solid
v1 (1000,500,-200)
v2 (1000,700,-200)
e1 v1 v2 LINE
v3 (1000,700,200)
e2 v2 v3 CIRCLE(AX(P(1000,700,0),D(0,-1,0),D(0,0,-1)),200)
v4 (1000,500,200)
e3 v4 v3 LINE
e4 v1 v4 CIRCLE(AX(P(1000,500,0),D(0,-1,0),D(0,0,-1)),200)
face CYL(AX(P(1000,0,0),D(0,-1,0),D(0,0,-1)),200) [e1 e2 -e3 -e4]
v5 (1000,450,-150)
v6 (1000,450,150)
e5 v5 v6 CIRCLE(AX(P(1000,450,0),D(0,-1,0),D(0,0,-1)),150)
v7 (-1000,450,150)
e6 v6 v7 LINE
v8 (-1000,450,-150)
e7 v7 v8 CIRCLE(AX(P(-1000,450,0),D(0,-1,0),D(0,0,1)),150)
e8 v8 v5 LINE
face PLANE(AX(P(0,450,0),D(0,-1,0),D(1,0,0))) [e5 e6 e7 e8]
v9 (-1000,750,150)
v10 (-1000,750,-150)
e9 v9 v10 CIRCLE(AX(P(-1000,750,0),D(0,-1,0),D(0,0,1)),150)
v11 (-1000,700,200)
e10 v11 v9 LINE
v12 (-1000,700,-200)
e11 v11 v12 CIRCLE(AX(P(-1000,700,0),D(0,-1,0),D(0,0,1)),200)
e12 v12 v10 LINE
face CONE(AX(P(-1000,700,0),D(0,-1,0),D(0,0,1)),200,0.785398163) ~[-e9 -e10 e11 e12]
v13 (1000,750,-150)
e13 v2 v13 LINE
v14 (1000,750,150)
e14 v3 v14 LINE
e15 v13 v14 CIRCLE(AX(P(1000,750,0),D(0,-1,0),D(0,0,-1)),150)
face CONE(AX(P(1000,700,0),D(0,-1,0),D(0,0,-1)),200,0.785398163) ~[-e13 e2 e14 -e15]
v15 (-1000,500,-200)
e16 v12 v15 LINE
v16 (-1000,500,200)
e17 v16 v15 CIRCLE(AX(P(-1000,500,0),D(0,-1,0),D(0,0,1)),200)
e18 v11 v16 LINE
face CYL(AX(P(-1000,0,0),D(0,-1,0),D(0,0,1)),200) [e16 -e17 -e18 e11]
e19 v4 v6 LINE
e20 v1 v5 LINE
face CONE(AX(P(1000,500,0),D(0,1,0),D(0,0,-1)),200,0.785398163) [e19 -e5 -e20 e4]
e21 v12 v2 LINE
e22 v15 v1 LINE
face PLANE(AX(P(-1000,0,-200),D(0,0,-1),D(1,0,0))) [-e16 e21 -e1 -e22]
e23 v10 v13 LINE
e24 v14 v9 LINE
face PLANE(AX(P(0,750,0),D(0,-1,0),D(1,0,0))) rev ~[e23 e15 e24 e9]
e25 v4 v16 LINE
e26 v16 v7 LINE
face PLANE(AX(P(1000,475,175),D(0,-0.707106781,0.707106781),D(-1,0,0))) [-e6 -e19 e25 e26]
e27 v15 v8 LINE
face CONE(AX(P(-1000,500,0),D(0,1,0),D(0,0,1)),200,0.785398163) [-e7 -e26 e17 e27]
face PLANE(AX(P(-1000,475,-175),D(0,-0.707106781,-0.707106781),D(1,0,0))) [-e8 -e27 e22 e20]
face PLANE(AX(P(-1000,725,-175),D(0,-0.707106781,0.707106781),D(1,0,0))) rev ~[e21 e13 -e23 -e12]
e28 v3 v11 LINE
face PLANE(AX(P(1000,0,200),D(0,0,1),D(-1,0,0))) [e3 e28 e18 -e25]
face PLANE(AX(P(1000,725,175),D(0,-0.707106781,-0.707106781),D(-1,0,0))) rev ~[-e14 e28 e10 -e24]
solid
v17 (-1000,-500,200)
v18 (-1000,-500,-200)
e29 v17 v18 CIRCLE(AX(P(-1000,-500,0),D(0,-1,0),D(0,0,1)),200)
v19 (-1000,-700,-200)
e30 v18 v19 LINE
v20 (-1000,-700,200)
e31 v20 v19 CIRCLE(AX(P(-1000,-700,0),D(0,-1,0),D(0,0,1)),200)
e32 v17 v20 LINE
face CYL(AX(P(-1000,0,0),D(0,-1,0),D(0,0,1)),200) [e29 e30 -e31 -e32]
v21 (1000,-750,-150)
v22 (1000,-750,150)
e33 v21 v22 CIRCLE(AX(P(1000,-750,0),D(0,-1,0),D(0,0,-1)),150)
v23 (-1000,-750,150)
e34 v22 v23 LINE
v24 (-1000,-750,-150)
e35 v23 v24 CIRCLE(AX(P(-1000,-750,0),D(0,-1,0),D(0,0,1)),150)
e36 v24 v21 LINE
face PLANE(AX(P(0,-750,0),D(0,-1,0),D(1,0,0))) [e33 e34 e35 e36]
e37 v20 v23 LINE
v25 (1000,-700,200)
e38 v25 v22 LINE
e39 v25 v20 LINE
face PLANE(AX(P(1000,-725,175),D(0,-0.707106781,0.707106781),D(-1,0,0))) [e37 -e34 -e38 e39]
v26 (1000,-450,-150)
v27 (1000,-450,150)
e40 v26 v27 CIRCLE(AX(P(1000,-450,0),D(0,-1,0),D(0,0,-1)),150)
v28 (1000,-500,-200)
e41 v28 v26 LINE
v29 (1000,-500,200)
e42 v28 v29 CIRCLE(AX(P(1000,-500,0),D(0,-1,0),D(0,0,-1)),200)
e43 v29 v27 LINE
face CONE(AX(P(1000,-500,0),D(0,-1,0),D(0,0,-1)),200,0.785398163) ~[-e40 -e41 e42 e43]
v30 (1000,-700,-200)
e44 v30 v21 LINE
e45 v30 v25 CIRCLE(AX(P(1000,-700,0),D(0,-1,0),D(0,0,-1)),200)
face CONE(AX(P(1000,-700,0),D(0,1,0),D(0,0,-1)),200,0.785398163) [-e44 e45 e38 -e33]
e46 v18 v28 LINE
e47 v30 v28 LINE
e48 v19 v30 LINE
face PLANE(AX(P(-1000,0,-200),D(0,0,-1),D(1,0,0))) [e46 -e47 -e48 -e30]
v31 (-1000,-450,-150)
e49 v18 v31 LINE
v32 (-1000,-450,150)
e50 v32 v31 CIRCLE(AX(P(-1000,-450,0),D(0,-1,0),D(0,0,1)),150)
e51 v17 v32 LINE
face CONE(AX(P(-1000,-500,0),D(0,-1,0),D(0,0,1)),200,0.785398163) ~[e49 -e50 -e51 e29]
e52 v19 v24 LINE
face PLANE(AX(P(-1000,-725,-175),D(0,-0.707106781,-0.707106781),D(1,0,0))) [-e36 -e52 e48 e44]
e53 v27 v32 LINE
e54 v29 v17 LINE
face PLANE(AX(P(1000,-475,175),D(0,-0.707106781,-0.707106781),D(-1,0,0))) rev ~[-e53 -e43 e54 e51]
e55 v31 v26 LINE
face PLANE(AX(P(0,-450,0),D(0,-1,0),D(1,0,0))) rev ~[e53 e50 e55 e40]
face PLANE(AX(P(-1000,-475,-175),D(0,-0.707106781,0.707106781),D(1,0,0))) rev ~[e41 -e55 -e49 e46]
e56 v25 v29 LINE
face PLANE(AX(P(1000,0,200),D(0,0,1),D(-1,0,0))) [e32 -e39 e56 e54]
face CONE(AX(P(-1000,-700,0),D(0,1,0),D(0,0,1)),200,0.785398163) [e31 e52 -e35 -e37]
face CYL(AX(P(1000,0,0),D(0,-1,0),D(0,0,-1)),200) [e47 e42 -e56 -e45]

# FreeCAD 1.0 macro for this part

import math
import FreeCAD as App
import Part
import Sketcher

V = App.Vector
Q = App.Units.Quantity


def edges_at(feature, points):
    """Names of the edges that pass closest to the given points."""
    edges = feature.Shape.Edges
    near = lambda p: min(range(len(edges)), key=lambda i: edges[i].distToShape(Part.Vertex(*p))[0])
    return sorted({f"Edge{near(p) + 1}" for p in points})

doc = App.newDocument("Part")
body = doc.addObject("PartDesign::Body", "Body")
body.AllowCompound = True

# Sketch on XZ plane
sketch1 = doc.addObject("Sketcher::SketchObject", "Sketch")
body.addObject(sketch1)
sketch1.AttachmentSupport = (doc.XZ_Plane, [""])
sketch1.MapMode = "FlatFace"
sketch1.addGeometry([
    Part.LineSegment(V(1000, 200, 0), V(-1000, 200, 0)),
    Part.ArcOfCircle(Part.Circle(V(-1000, 0, 0), V(0, 0, 1), 200), math.radians(90), math.radians(270)),
    Part.LineSegment(V(-1000, -200, 0), V(1000, -200, 0)),
    Part.ArcOfCircle(Part.Circle(V(1000, 0, 0), V(0, 0, 1), 200), math.radians(-90), math.radians(90)),
], False)
sketch1.addConstraint([
    Sketcher.Constraint("Tangent", 0, 2, 1, 1),
    Sketcher.Constraint("Tangent", 1, 2, 2, 1),
    Sketcher.Constraint("Tangent", 2, 2, 3, 1),
    Sketcher.Constraint("Tangent", 3, 2, 0, 1),
    Sketcher.Constraint("Horizontal", 0),
    Sketcher.Constraint("Horizontal", 2),
    Sketcher.Constraint("Symmetric", 1, 3, 3, 3, -1, 1),
    Sketcher.Constraint("Radius", 1, Q("200 mm")),
    Sketcher.Constraint("DistanceX", 0, 2, 0, 1, Q("2000 mm")),
])
pad1 = doc.addObject("PartDesign::Pad", "Pad")
body.addObject(pad1)
pad1.Profile = sketch1
pad1.Length = 1500
pad1.Midplane = True

# Sketch on XZ plane
sketch2 = doc.addObject("Sketcher::SketchObject", "Sketch001")
body.addObject(sketch2)
sketch2.AttachmentSupport = (doc.XZ_Plane, [""])
sketch2.MapMode = "FlatFace"
sketch2.addGeometry([
    Part.LineSegment(V(1000, 200, 0), V(-1000, 200, 0)),
    Part.ArcOfCircle(Part.Circle(V(-1000, 0, 0), V(0, 0, 1), 200), math.radians(90), math.radians(270)),
    Part.LineSegment(V(-1000, -200, 0), V(1000, -200, 0)),
    Part.ArcOfCircle(Part.Circle(V(1000, 0, 0), V(0, 0, 1), 200), math.radians(-90), math.radians(90)),
], False)
sketch2.addConstraint([
    Sketcher.Constraint("Tangent", 0, 2, 1, 1),
    Sketcher.Constraint("Tangent", 1, 2, 2, 1),
    Sketcher.Constraint("Tangent", 2, 2, 3, 1),
    Sketcher.Constraint("Tangent", 3, 2, 0, 1),
    Sketcher.Constraint("Horizontal", 0),
    Sketcher.Constraint("Horizontal", 2),
    Sketcher.Constraint("Symmetric", 1, 3, 3, 3, -1, 1),
    Sketcher.Constraint("Radius", 1, Q("200 mm")),
    Sketcher.Constraint("DistanceX", 0, 2, 0, 1, Q("2000 mm")),
])
pocket1 = doc.addObject("PartDesign::Pocket", "Pocket")
body.addObject(pocket1)
pocket1.Profile = sketch2
pocket1.Length = 900
pocket1.Midplane = True
doc.recompute()

chamfer = doc.addObject("PartDesign::Chamfer", "Chamfer")
body.addObject(chamfer)
chamfer.Base = (pocket1, edges_at(pocket1, [
    (0, -750, 200),
    (-1200, -750, 0),
    (0, -750, -200),
    (1200, -750, 0),
    (0, 450, 200),
    (0, 750, 200),
    (0, -450, 200),
]))
chamfer.Size = 50

doc.recompute()
